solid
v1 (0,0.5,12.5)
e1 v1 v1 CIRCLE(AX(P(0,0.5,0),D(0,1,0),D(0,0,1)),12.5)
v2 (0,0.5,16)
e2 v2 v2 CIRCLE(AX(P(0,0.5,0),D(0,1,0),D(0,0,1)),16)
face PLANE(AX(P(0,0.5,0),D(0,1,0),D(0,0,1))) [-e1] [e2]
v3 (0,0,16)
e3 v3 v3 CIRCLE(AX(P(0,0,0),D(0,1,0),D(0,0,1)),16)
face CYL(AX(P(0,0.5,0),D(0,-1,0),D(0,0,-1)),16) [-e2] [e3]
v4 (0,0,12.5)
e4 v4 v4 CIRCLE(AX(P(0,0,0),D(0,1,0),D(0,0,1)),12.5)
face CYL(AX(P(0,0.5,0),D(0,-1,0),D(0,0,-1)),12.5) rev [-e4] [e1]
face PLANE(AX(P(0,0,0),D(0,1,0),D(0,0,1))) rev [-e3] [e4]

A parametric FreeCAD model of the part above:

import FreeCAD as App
import Part
import Sketcher

V = App.Vector

doc = App.newDocument("Part")
body = doc.addObject("PartDesign::Body", "Body")

sketch1 = body.newObject("Sketcher::SketchObject", "Sketch")
sketch1.AttachmentSupport = (doc.getObject("XZ_Plane"), [""])
sketch1.MapMode = "FlatFace"
sketch1.addGeometry([
    Part.Circle(V(0, 0, 0), V(0, 0, 1), 16),
    Part.Circle(V(0, 0, 0), V(0, 0, 1), 12.5),
], False)
sketch1.addConstraint([
    Sketcher.Constraint("Coincident", 0, 3, -1, 1),
    Sketcher.Constraint("Coincident", 1, 3, -1, 1),
    Sketcher.Constraint("Diameter", 0, 32.0),
    Sketcher.Constraint("Diameter", 1, 25.0),
])
pad1 = body.newObject("PartDesign::Pad", "Pad")
pad1.Profile = sketch1
pad1.Length = 0.5
pad1.Reversed = True

doc.recompute()
